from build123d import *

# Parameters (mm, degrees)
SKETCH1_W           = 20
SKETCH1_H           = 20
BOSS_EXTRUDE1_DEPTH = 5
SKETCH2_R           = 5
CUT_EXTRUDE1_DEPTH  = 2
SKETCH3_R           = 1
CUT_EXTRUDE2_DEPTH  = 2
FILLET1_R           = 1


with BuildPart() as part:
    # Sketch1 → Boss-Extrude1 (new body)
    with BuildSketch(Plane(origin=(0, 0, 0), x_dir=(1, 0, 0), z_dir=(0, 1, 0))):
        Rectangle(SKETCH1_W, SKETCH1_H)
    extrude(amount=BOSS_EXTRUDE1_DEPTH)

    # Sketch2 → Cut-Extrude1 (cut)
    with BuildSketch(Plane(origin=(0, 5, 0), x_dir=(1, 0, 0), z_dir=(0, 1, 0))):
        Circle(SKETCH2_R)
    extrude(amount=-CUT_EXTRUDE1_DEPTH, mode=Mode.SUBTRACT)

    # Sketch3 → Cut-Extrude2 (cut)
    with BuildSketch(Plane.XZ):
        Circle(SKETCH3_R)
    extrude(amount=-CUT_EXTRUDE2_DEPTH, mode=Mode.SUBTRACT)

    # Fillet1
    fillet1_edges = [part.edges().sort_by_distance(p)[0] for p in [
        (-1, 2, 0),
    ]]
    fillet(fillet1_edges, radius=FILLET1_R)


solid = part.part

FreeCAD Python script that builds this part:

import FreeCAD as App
import Part
import Sketcher
from FreeCAD import Vector
Q = App.Units.Quantity


def edges_at(feature, points):
    """Names of the edges that pass closest to the given points."""
    edges = feature.Shape.Edges
    near = lambda p: min(range(len(edges)), key=lambda i: edges[i].distToShape(Part.Vertex(*p))[0])
    return sorted({f"Edge{near(p) + 1}" for p in points})


def add_polygon(sketch, points):
    """Adds a closed chain of lines whose ends are joined by coincident constraints."""
    first, n = sketch.GeometryCount, len(points)
    for a, b in zip(points, points[1:] + points[:1]):
        sketch.addGeometry(Part.LineSegment(App.Vector(*a, 0), App.Vector(*b, 0)), False)
    for i in range(n):
        sketch.addConstraint(Sketcher.Constraint("Coincident", first + i, 2, first + (i + 1) % n, 1))

doc = App.newDocument("Part")
body = doc.addObject("PartDesign::Body", "Body")

# Sketch on XZ plane
sketch1 = body.newObject("Sketcher::SketchObject", "Sketch")
sketch1.AttachmentSupport = (doc.getObject("XZ_Plane"), [""])
sketch1.MapMode = "FlatFace"
add_polygon(sketch1, [(-10, -10), (-10, 10), (10, 10), (10, -10)])  # lines 0-3
sketch1.addConstraint(Sketcher.Constraint("Vertical", 0))
sketch1.addConstraint(Sketcher.Constraint("Horizontal", 1))
sketch1.addConstraint(Sketcher.Constraint("Vertical", 2))
sketch1.addConstraint(Sketcher.Constraint("Horizontal", 3))
sketch1.addConstraint(Sketcher.Constraint("Symmetric", 0, 2, 2, 2, -1, 1))
sketch1.addConstraint(Sketcher.Constraint("Equal", 3, 0))
sketch1.addConstraint(Sketcher.Constraint("DistanceX", 1, 1, 1, 2, Q("20 mm")))
pad1 = body.newObject("PartDesign::Pad", "Pad")
pad1.Profile = sketch1
pad1.Length = 5
pad1.Reversed = True

# Sketch on XZ plane
sketch2 = body.newObject("Sketcher::SketchObject", "Sketch001")
sketch2.AttachmentSupport = (doc.getObject("XZ_Plane"), [""])
sketch2.MapMode = "FlatFace"
sketch2.AttachmentOffset = App.Placement(Vector(0, 0, -5), App.Rotation())
sketch2.addGeometry(Part.Circle(Vector(0, 0, 0), Vector(0, 0, 1), 5), False)
sketch2.addConstraint(Sketcher.Constraint("Coincident", 0, 3, -1, 1))
sketch2.addConstraint(Sketcher.Constraint("Diameter", 0, Q("10 mm")))
pocket1 = body.newObject("PartDesign::Pocket", "Pocket")
pocket1.Profile = sketch2
pocket1.Length = 2
pocket1.Reversed = True

# Sketch on XZ plane
sketch3 = body.newObject("Sketcher::SketchObject", "Sketch002")
sketch3.AttachmentSupport = (doc.getObject("XZ_Plane"), [""])
sketch3.MapMode = "FlatFace"
sketch3.addGeometry(Part.Circle(Vector(0, 0, 0), Vector(0, 0, 1), 1), False)
sketch3.addConstraint(Sketcher.Constraint("Coincident", 0, 3, -1, 1))
sketch3.addConstraint(Sketcher.Constraint("Diameter", 0, Q("2 mm")))
pocket2 = body.newObject("PartDesign::Pocket", "Pocket001")
pocket2.Profile = sketch3
pocket2.Length = 2
doc.recompute()

fillet = body.newObject("PartDesign::Fillet", "Fillet")
fillet.Base = (pocket2, edges_at(pocket2, [(-1, 2, 0)]))
fillet.Radius = 1

doc.recompute()
